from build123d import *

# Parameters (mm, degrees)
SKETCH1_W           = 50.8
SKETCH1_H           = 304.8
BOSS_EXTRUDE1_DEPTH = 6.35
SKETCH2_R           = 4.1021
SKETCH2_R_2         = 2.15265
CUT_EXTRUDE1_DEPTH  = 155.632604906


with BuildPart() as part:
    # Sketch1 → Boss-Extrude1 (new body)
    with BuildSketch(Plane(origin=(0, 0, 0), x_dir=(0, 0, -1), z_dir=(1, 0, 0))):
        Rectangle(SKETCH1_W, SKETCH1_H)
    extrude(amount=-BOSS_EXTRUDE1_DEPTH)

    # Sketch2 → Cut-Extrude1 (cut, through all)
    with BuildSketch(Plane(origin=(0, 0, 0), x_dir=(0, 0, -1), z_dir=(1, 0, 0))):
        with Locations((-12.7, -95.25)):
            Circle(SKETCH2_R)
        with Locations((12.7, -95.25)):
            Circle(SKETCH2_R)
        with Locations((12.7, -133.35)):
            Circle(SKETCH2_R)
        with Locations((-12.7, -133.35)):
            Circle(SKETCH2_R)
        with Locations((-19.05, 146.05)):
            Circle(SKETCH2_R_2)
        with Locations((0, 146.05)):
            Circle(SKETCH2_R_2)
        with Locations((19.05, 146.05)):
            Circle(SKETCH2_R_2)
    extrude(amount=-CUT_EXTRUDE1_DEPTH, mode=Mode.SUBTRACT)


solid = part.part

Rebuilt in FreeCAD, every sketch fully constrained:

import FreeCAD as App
import Part
import Sketcher

V = App.Vector
Q = App.Units.Quantity


def add_polygon(sketch, points):
    """Adds a closed chain of lines whose ends are joined by coincident constraints."""
    first, n = sketch.GeometryCount, len(points)
    for a, b in zip(points, points[1:] + points[:1]):
        sketch.addGeometry(Part.LineSegment(App.Vector(*a, 0), App.Vector(*b, 0)), False)
    for i in range(n):
        sketch.addConstraint(Sketcher.Constraint("Coincident", first + i, 2, first + (i + 1) % n, 1))

doc = App.newDocument("Part")
params = doc.addObject("Spreadsheet::Sheet", "Params")
for row, (alias, value) in enumerate([
    ("sketch1_width", "12 in"),
    ("sketch1_height", "2 in"),
    ("pad1_length", "0.25 in"),
    ("sketch2_diameter", "0.323 in"),
], start=1):
    params.set(f"A{row}", alias)
    params.set(f"B{row}", "=" + value)
    params.setAlias(f"B{row}", alias)

body = doc.addObject("PartDesign::Body", "Body")

# Sketch on YZ plane
sketch1 = body.newObject("Sketcher::SketchObject", "Sketch")
sketch1.AttachmentSupport = (doc.getObject("YZ_Plane"), [""])
sketch1.MapMode = "FlatFace"
add_polygon(sketch1, [(152.4, 25.4), (-152.4, 25.4), (-152.4, -25.4), (152.4, -25.4)])  # lines 0-3
sketch1.addConstraint([
    Sketcher.Constraint("Horizontal", 0),
    Sketcher.Constraint("Vertical", 1),
    Sketcher.Constraint("Horizontal", 2),
    Sketcher.Constraint("Vertical", 3),
    Sketcher.Constraint("Symmetric", 0, 2, 2, 2, -1, 1),
    Sketcher.Constraint("DistanceX", 0, 2, 0, 1, Q("12 in")),
    Sketcher.Constraint("DistanceY", 1, 2, 1, 1, Q("2 in")),
])
sketch1.setExpression("Constraints[9]", "Params.sketch1_width")
sketch1.setExpression("Constraints[10]", "Params.sketch1_height")
pad1 = body.newObject("PartDesign::Pad", "Pad")
pad1.Profile = sketch1
pad1.setExpression("Length", "Params.pad1_length")
pad1.Reversed = True

# Sketch on YZ plane
sketch2 = body.newObject("Sketcher::SketchObject", "Sketch001")
sketch2.AttachmentSupport = (doc.getObject("YZ_Plane"), [""])
sketch2.MapMode = "FlatFace"
sketch2.addGeometry([
    Part.Circle(V(-95.25, 12.7, 0), V(0, 0, 1), 4.1021),  # 0
    Part.Circle(V(-95.25, -12.7, 0), V(0, 0, 1), 4.1021),  # 1
    Part.Circle(V(-133.35, -12.7, 0), V(0, 0, 1), 4.1021),  # 2
    Part.Circle(V(-133.35, 12.7, 0), V(0, 0, 1), 4.1021),  # 3
    Part.Circle(V(146.05, 19.05, 0), V(0, 0, 1), 2.15265),  # 4
    Part.Circle(V(146.05, 0, 0), V(0, 0, 1), 2.15265),  # 5
    Part.Circle(V(146.05, -19.05, 0), V(0, 0, 1), 2.15265),  # 6
], False)
sketch2.addConstraint([
    Sketcher.Constraint("Equal", 0, 1),
    Sketcher.Constraint("Equal", 1, 2),
    Sketcher.Constraint("Equal", 2, 3),
    Sketcher.Constraint("Equal", 4, 5),
    Sketcher.Constraint("Equal", 5, 6),
    Sketcher.Constraint("Symmetric", 0, 3, 1, 3, -1),
    Sketcher.Constraint("Symmetric", 2, 3, 3, 3, -1),
    Sketcher.Constraint("Symmetric", 4, 3, 6, 3, -1),
    Sketcher.Constraint("PointOnObject", 5, 3, -1),
    Sketcher.Constraint("Horizontal", 1, 3, 2, 3),
    Sketcher.Constraint("Vertical", 4, 3, 5, 3),
    Sketcher.Constraint("Diameter", 0, Q("0.323 in")),
    Sketcher.Constraint("DistanceY", 1, 3, 0, 3, Q("1 in")),
    Sketcher.Constraint("DistanceX", 3, 3, 4, 3, Q("11 in")),
    Sketcher.Constraint("Diameter", 4, Q("0.1695 in")),
    Sketcher.Constraint("DistanceX", 2, 3, 1, 3, Q("1.5 in")),
    Sketcher.Constraint("DistanceY", 6, 3, 4, 3, Q("1.5 in")),
    Sketcher.Constraint("DistanceX", 0, 3, -1, 1, Q("3.75 in")),
])
sketch2.setExpression("Constraints[11]", "Params.sketch2_diameter")
pocket1 = body.newObject("PartDesign::Pocket", "Pocket")
pocket1.Profile = sketch2
pocket1.Type = "ThroughAll"

doc.recompute()
